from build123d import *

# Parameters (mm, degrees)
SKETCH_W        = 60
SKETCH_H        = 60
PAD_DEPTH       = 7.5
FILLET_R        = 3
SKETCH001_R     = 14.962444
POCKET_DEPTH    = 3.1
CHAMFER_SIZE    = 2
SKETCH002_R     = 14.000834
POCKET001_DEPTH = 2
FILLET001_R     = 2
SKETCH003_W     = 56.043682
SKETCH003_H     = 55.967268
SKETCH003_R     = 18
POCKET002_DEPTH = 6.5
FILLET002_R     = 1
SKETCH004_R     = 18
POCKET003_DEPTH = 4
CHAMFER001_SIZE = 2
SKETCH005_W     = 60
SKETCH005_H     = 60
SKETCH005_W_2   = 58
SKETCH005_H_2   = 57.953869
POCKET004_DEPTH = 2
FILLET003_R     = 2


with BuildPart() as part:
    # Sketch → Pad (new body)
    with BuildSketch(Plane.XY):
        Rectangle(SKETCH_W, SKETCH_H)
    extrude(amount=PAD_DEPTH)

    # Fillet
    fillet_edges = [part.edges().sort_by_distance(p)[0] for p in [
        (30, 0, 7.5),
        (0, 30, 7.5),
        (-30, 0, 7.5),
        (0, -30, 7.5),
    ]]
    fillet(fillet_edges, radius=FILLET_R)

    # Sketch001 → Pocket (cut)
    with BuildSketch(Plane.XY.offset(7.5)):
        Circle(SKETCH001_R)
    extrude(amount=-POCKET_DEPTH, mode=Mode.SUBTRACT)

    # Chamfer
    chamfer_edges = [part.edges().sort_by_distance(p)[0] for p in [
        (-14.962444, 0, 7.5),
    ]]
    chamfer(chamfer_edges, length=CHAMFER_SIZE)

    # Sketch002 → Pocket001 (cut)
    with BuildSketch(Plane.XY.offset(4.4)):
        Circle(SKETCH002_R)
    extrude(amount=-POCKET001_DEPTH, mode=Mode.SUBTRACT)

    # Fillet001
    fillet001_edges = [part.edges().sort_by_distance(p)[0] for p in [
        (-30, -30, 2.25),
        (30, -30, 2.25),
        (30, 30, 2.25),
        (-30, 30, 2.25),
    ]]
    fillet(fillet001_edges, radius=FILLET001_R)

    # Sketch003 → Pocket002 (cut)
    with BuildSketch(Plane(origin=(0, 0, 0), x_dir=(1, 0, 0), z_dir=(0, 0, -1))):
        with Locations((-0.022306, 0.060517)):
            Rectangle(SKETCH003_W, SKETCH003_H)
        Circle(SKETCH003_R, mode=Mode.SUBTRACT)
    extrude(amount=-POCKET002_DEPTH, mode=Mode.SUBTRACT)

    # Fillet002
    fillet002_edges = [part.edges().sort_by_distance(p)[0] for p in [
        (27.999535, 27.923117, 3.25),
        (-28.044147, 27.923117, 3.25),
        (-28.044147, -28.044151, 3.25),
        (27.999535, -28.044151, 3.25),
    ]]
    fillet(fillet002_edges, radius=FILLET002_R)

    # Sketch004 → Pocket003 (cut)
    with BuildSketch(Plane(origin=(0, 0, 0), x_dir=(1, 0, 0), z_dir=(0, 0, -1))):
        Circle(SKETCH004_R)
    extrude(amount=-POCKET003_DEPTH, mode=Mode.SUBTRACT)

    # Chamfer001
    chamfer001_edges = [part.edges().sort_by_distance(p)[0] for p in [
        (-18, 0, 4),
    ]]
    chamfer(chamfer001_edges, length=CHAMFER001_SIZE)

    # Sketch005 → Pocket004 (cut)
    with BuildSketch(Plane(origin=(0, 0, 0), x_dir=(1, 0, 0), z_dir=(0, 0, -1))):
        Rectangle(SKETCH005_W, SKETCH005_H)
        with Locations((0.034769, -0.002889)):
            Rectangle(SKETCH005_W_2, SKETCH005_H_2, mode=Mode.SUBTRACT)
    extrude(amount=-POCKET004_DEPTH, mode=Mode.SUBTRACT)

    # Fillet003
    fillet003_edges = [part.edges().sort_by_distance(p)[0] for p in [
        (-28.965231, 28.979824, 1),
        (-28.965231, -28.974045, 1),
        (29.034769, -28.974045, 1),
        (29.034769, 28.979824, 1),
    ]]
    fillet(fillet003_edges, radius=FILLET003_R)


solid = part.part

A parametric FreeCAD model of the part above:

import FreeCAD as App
import Part
import Sketcher

V = App.Vector


def edges_at(feature, points):
    """Names of the edges that pass closest to the given points."""
    edges = feature.Shape.Edges
    near = lambda p: min(range(len(edges)), key=lambda i: edges[i].distToShape(Part.Vertex(*p))[0])
    return sorted({f"Edge{near(p) + 1}" for p in points})

doc = App.newDocument("Part")
body = doc.addObject("PartDesign::Body", "Body")

sketch1 = body.newObject("Sketcher::SketchObject", "Sketch")
sketch1.AttachmentSupport = (doc.getObject("XY_Plane"), [""])
sketch1.MapMode = "FlatFace"
sketch1.addGeometry([
    Part.LineSegment(V(-30, 30, 0), V(-30, -30, 0)),
    Part.LineSegment(V(-30, -30, 0), V(30, -30, 0)),
    Part.LineSegment(V(30, -30, 0), V(30, 30, 0)),
    Part.LineSegment(V(30, 30, 0), V(-30, 30, 0)),
], False)
sketch1.addConstraint([
    Sketcher.Constraint("Coincident", 0, 2, 1, 1),
    Sketcher.Constraint("Coincident", 1, 2, 2, 1),
    Sketcher.Constraint("Coincident", 2, 2, 3, 1),
    Sketcher.Constraint("Coincident", 3, 2, 0, 1),
    Sketcher.Constraint("Vertical", 0),
    Sketcher.Constraint("Horizontal", 1),
    Sketcher.Constraint("Vertical", 2),
    Sketcher.Constraint("Horizontal", 3),
    Sketcher.Constraint("Symmetric", 0, 2, 2, 2, -1, 1),
    Sketcher.Constraint("Equal", 3, 0),
    Sketcher.Constraint("DistanceX", 1, 1, 1, 2, 60.0),
])
pad1 = body.newObject("PartDesign::Pad", "Pad")
pad1.Profile = sketch1
pad1.Length = 7.5
doc.recompute()

fillet = body.newObject("PartDesign::Fillet", "Fillet")
fillet.Base = (pad1, edges_at(pad1, [
    (30, 0, 7.5),
    (0, 30, 7.5),
    (-30, 0, 7.5),
    (0, -30, 7.5),
]))
fillet.Radius = 3

sketch2 = body.newObject("Sketcher::SketchObject", "Sketch001")
sketch2.AttachmentSupport = (doc.getObject("XY_Plane"), [""])
sketch2.MapMode = "FlatFace"
sketch2.AttachmentOffset = App.Placement(V(0, 0, 7.5), App.Rotation())
sketch2.addGeometry(Part.Circle(V(0, 0, 0), V(0, 0, 1), 15), False)
sketch2.addConstraint([
    Sketcher.Constraint("Coincident", 0, 3, -1, 1),
    Sketcher.Constraint("Diameter", 0, 29.924888),
])
pocket1 = body.newObject("PartDesign::Pocket", "Pocket")
pocket1.Profile = sketch2
pocket1.Length = 3.1
doc.recompute()

chamfer = body.newObject("PartDesign::Chamfer", "Chamfer")
chamfer.Base = (pocket1, edges_at(pocket1, [(-14.962, 0, 7.5)]))
chamfer.Size = 2

sketch3 = body.newObject("Sketcher::SketchObject", "Sketch002")
sketch3.AttachmentSupport = (doc.getObject("XY_Plane"), [""])
sketch3.MapMode = "FlatFace"
sketch3.AttachmentOffset = App.Placement(V(0, 0, 4.4), App.Rotation())
sketch3.addGeometry(Part.Circle(V(0, 0, 0), V(0, 0, 1), 14), False)
sketch3.addConstraint([
    Sketcher.Constraint("Coincident", 0, 3, -1, 1),
    Sketcher.Constraint("Diameter", 0, 28.001668),
])
pocket2 = body.newObject("PartDesign::Pocket", "Pocket001")
pocket2.Profile = sketch3
pocket2.Length = 2
doc.recompute()

fillet2 = body.newObject("PartDesign::Fillet", "Fillet001")
fillet2.Base = (pocket2, edges_at(pocket2, [
    (-30, -30, 2.25),
    (30, -30, 2.25),
    (30, 30, 2.25),
    (-30, 30, 2.25),
]))
fillet2.Radius = 2

sketch4 = body.newObject("Sketcher::SketchObject", "Sketch003")
sketch4.AttachmentSupport = (doc.getObject("XY_Plane"), [""])
sketch4.MapMode = "FlatFace"
sketch4.addGeometry([
    Part.LineSegment(V(-28, -28, 0), V(-28, 28, 0)),
    Part.LineSegment(V(-28, 28, 0), V(28, 28, 0)),
    Part.LineSegment(V(28, 28, 0), V(28, -28, 0)),
    Part.LineSegment(V(28, -28, 0), V(-28, -28, 0)),
    Part.Circle(V(0, 0, 0), V(0, 0, 1), 18),
], False)
sketch4.addConstraint([
    Sketcher.Constraint("Coincident", 0, 2, 1, 1),
    Sketcher.Constraint("Coincident", 1, 2, 2, 1),
    Sketcher.Constraint("Coincident", 2, 2, 3, 1),
    Sketcher.Constraint("Coincident", 3, 2, 0, 1),
    Sketcher.Constraint("Vertical", 0),
    Sketcher.Constraint("Horizontal", 1),
    Sketcher.Constraint("Vertical", 2),
    Sketcher.Constraint("Horizontal", 3),
    Sketcher.Constraint("Coincident", 4, 3, -1, 1),
    Sketcher.Constraint("Diameter", 4, 36.0),
    Sketcher.Constraint("DistanceY", 0, 1, 0, 2, 55.967268),
    Sketcher.Constraint("DistanceX", 1, 1, 1, 2, 56.043682),
    Sketcher.Constraint("DistanceY", 2, 2, -1, 1, 28.044151),
    Sketcher.Constraint("DistanceX", 0, 2, -1, 1, 28.044147),
])
pocket3 = body.newObject("PartDesign::Pocket", "Pocket002")
pocket3.Profile = sketch4
pocket3.Length = 6.5
pocket3.Reversed = True
doc.recompute()

fillet3 = body.newObject("PartDesign::Fillet", "Fillet002")
fillet3.Base = (pocket3, edges_at(pocket3, [
    (28, 27.923, 3.25),
    (-28.044, 27.923, 3.25),
    (-28.044, -28.044, 3.25),
    (28, -28.044, 3.25),
]))
fillet3.Radius = 1

sketch5 = body.newObject("Sketcher::SketchObject", "Sketch004")
sketch5.AttachmentSupport = (doc.getObject("XY_Plane"), [""])
sketch5.MapMode = "FlatFace"
sketch5.addGeometry(Part.Circle(V(0, 0, 0), V(0, 0, 1), 18), False)
sketch5.addConstraint([
    Sketcher.Constraint("Coincident", 0, 3, -1, 1),
    Sketcher.Constraint("Diameter", 0, 36.0),
])
pocket4 = body.newObject("PartDesign::Pocket", "Pocket003")
pocket4.Profile = sketch5
pocket4.Length = 4
pocket4.Reversed = True
doc.recompute()

chamfer2 = body.newObject("PartDesign::Chamfer", "Chamfer001")
chamfer2.Base = (pocket4, edges_at(pocket4, [(-18, 0, 4)]))
chamfer2.Size = 2

sketch6 = body.newObject("Sketcher::SketchObject", "Sketch005")
sketch6.AttachmentSupport = (doc.getObject("XY_Plane"), [""])
sketch6.MapMode = "FlatFace"
sketch6.addGeometry([
    Part.LineSegment(V(-30, -30, 0), V(-30, 30, 0)),
    Part.LineSegment(V(-30, 30, 0), V(30, 30, 0)),
    Part.LineSegment(V(30, 30, 0), V(30, -30, 0)),
    Part.LineSegment(V(30, -30, 0), V(-30, -30, 0)),
    Part.LineSegment(V(29, 29, 0), V(-29, 29, 0)),
    Part.LineSegment(V(-29, 29, 0), V(-29, -29, 0)),
    Part.LineSegment(V(-29, -29, 0), V(29, -29, 0)),
    Part.LineSegment(V(29, -29, 0), V(29, 29, 0)),
], False)
sketch6.addConstraint([
    Sketcher.Constraint("Coincident", 0, 2, 1, 1),
    Sketcher.Constraint("Coincident", 1, 2, 2, 1),
    Sketcher.Constraint("Coincident", 2, 2, 3, 1),
    Sketcher.Constraint("Coincident", 3, 2, 0, 1),
    Sketcher.Constraint("Coincident", 4, 2, 5, 1),
    Sketcher.Constraint("Coincident", 5, 2, 6, 1),
    Sketcher.Constraint("Coincident", 6, 2, 7, 1),
    Sketcher.Constraint("Coincident", 7, 2, 4, 1),
    Sketcher.Constraint("Vertical", 0),
    Sketcher.Constraint("Horizontal", 1),
    Sketcher.Constraint("Vertical", 2),
    Sketcher.Constraint("Horizontal", 3),
    Sketcher.Constraint("Horizontal", 4),
    Sketcher.Constraint("Vertical", 5),
    Sketcher.Constraint("Horizontal", 6),
    Sketcher.Constraint("Vertical", 7),
    Sketcher.Constraint("Symmetric", 0, 2, 2, 2, -1, 1),
    Sketcher.Constraint("Equal", 3, 0),
    Sketcher.Constraint("DistanceX", 1, 1, 1, 2, 60.0),
    Sketcher.Constraint("DistanceX", 4, 2, 4, 1, 58.0),
    Sketcher.Constraint("DistanceY", 5, 2, 5, 1, 57.953869),
    Sketcher.Constraint("DistanceX", 4, 2, -1, 1, 28.965231),
    Sketcher.Constraint("DistanceY", -1, 1, 4, 2, 28.979823),
])
pocket5 = body.newObject("PartDesign::Pocket", "Pocket004")
pocket5.Profile = sketch6
pocket5.Length = 2
pocket5.Reversed = True
doc.recompute()

fillet4 = body.newObject("PartDesign::Fillet", "Fillet003")
fillet4.Base = (pocket5, edges_at(pocket5, [
    (-28.965, 28.98, 1),
    (-28.965, -28.974, 1),
    (29.035, -28.974, 1),
    (29.035, 28.98, 1),
]))
fillet4.Radius = 2

doc.recompute()
